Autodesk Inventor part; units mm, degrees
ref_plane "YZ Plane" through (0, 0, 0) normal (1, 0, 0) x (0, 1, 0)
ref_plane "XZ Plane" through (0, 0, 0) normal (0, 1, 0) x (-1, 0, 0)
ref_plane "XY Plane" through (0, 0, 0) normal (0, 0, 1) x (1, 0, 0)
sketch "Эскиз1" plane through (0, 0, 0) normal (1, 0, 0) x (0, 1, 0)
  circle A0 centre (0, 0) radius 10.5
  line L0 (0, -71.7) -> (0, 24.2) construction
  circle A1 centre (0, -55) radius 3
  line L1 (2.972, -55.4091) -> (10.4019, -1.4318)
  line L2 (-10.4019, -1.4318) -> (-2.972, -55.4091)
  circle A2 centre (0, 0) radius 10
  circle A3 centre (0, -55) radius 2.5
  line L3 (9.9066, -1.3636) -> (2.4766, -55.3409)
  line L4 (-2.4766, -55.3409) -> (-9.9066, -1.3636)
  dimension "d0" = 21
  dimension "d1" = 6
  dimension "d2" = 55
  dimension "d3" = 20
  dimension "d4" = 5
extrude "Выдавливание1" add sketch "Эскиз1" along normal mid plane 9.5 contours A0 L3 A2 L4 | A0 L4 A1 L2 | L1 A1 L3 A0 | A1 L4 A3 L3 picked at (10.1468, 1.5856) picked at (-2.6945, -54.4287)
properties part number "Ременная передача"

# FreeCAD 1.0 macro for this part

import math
import FreeCAD as App
import Part
import Sketcher

V = App.Vector

doc = App.newDocument("Part")
body = doc.addObject("PartDesign::Body", "Body")

sketch1 = body.newObject("Sketcher::SketchObject", "Sketch")
sketch1.AttachmentSupport = (doc.getObject("YZ_Plane"), [""])
sketch1.MapMode = "FlatFace"
sketch1.addGeometry([
    Part.ArcOfCircle(Part.Circle(V(0, 0, 0), V(0, 0, 1), 10.5), math.radians(-8), math.radians(188)),
    Part.LineSegment(V(-10.4, -1.4, 0), V(-3, -55.4, 0)),
    Part.ArcOfCircle(Part.Circle(V(0, -55, 0), V(0, 0, 1), 3), math.radians(-172), math.radians(-8)),
    Part.LineSegment(V(3, -55.4, 0), V(10.4, -1.4, 0)),
    Part.LineSegment(V(9.9, -1.4, 0), V(2.5, -55.3, 0)),
    Part.ArcOfCircle(Part.Circle(V(0, -55, 0), V(0, 0, 1), 2.5), math.radians(-172), math.radians(-8)),
    Part.LineSegment(V(-2.5, -55.3, 0), V(-9.9, -1.4, 0)),
    Part.ArcOfCircle(Part.Circle(V(0, 0, 0), V(0, 0, 1), 10), math.radians(-8), math.radians(188)),
], False)
sketch1.addConstraint([
    Sketcher.Constraint("Tangent", 0, 2, 1, 1),
    Sketcher.Constraint("Tangent", 1, 2, 2, 1),
    Sketcher.Constraint("Tangent", 2, 2, 3, 1),
    Sketcher.Constraint("Tangent", 3, 2, 0, 1),
    Sketcher.Constraint("Tangent", 4, 2, 5, 2),
    Sketcher.Constraint("Tangent", 5, 1, 6, 1),
    Sketcher.Constraint("Tangent", 6, 2, 7, 2),
    Sketcher.Constraint("Tangent", 7, 1, 4, 1),
    Sketcher.Constraint("Coincident", 0, 3, -1, 1),
    Sketcher.Constraint("Coincident", 7, 3, -1, 1),
    Sketcher.Constraint("Coincident", 5, 3, 2, 3),
    Sketcher.Constraint("PointOnObject", 2, 3, -2),
    Sketcher.Constraint("Parallel", 3, 4),
    Sketcher.Constraint("Radius", 2, 3.0),
    Sketcher.Constraint("Radius", 7, 10.0),
    Sketcher.Constraint("Radius", 0, 10.5),
    Sketcher.Constraint("DistanceY", 2, 3, -1, 1, 55.0),
])
pad1 = body.newObject("PartDesign::Pad", "Pad")
pad1.Profile = sketch1
pad1.Length = 9.5
pad1.Midplane = True

doc.recompute()
